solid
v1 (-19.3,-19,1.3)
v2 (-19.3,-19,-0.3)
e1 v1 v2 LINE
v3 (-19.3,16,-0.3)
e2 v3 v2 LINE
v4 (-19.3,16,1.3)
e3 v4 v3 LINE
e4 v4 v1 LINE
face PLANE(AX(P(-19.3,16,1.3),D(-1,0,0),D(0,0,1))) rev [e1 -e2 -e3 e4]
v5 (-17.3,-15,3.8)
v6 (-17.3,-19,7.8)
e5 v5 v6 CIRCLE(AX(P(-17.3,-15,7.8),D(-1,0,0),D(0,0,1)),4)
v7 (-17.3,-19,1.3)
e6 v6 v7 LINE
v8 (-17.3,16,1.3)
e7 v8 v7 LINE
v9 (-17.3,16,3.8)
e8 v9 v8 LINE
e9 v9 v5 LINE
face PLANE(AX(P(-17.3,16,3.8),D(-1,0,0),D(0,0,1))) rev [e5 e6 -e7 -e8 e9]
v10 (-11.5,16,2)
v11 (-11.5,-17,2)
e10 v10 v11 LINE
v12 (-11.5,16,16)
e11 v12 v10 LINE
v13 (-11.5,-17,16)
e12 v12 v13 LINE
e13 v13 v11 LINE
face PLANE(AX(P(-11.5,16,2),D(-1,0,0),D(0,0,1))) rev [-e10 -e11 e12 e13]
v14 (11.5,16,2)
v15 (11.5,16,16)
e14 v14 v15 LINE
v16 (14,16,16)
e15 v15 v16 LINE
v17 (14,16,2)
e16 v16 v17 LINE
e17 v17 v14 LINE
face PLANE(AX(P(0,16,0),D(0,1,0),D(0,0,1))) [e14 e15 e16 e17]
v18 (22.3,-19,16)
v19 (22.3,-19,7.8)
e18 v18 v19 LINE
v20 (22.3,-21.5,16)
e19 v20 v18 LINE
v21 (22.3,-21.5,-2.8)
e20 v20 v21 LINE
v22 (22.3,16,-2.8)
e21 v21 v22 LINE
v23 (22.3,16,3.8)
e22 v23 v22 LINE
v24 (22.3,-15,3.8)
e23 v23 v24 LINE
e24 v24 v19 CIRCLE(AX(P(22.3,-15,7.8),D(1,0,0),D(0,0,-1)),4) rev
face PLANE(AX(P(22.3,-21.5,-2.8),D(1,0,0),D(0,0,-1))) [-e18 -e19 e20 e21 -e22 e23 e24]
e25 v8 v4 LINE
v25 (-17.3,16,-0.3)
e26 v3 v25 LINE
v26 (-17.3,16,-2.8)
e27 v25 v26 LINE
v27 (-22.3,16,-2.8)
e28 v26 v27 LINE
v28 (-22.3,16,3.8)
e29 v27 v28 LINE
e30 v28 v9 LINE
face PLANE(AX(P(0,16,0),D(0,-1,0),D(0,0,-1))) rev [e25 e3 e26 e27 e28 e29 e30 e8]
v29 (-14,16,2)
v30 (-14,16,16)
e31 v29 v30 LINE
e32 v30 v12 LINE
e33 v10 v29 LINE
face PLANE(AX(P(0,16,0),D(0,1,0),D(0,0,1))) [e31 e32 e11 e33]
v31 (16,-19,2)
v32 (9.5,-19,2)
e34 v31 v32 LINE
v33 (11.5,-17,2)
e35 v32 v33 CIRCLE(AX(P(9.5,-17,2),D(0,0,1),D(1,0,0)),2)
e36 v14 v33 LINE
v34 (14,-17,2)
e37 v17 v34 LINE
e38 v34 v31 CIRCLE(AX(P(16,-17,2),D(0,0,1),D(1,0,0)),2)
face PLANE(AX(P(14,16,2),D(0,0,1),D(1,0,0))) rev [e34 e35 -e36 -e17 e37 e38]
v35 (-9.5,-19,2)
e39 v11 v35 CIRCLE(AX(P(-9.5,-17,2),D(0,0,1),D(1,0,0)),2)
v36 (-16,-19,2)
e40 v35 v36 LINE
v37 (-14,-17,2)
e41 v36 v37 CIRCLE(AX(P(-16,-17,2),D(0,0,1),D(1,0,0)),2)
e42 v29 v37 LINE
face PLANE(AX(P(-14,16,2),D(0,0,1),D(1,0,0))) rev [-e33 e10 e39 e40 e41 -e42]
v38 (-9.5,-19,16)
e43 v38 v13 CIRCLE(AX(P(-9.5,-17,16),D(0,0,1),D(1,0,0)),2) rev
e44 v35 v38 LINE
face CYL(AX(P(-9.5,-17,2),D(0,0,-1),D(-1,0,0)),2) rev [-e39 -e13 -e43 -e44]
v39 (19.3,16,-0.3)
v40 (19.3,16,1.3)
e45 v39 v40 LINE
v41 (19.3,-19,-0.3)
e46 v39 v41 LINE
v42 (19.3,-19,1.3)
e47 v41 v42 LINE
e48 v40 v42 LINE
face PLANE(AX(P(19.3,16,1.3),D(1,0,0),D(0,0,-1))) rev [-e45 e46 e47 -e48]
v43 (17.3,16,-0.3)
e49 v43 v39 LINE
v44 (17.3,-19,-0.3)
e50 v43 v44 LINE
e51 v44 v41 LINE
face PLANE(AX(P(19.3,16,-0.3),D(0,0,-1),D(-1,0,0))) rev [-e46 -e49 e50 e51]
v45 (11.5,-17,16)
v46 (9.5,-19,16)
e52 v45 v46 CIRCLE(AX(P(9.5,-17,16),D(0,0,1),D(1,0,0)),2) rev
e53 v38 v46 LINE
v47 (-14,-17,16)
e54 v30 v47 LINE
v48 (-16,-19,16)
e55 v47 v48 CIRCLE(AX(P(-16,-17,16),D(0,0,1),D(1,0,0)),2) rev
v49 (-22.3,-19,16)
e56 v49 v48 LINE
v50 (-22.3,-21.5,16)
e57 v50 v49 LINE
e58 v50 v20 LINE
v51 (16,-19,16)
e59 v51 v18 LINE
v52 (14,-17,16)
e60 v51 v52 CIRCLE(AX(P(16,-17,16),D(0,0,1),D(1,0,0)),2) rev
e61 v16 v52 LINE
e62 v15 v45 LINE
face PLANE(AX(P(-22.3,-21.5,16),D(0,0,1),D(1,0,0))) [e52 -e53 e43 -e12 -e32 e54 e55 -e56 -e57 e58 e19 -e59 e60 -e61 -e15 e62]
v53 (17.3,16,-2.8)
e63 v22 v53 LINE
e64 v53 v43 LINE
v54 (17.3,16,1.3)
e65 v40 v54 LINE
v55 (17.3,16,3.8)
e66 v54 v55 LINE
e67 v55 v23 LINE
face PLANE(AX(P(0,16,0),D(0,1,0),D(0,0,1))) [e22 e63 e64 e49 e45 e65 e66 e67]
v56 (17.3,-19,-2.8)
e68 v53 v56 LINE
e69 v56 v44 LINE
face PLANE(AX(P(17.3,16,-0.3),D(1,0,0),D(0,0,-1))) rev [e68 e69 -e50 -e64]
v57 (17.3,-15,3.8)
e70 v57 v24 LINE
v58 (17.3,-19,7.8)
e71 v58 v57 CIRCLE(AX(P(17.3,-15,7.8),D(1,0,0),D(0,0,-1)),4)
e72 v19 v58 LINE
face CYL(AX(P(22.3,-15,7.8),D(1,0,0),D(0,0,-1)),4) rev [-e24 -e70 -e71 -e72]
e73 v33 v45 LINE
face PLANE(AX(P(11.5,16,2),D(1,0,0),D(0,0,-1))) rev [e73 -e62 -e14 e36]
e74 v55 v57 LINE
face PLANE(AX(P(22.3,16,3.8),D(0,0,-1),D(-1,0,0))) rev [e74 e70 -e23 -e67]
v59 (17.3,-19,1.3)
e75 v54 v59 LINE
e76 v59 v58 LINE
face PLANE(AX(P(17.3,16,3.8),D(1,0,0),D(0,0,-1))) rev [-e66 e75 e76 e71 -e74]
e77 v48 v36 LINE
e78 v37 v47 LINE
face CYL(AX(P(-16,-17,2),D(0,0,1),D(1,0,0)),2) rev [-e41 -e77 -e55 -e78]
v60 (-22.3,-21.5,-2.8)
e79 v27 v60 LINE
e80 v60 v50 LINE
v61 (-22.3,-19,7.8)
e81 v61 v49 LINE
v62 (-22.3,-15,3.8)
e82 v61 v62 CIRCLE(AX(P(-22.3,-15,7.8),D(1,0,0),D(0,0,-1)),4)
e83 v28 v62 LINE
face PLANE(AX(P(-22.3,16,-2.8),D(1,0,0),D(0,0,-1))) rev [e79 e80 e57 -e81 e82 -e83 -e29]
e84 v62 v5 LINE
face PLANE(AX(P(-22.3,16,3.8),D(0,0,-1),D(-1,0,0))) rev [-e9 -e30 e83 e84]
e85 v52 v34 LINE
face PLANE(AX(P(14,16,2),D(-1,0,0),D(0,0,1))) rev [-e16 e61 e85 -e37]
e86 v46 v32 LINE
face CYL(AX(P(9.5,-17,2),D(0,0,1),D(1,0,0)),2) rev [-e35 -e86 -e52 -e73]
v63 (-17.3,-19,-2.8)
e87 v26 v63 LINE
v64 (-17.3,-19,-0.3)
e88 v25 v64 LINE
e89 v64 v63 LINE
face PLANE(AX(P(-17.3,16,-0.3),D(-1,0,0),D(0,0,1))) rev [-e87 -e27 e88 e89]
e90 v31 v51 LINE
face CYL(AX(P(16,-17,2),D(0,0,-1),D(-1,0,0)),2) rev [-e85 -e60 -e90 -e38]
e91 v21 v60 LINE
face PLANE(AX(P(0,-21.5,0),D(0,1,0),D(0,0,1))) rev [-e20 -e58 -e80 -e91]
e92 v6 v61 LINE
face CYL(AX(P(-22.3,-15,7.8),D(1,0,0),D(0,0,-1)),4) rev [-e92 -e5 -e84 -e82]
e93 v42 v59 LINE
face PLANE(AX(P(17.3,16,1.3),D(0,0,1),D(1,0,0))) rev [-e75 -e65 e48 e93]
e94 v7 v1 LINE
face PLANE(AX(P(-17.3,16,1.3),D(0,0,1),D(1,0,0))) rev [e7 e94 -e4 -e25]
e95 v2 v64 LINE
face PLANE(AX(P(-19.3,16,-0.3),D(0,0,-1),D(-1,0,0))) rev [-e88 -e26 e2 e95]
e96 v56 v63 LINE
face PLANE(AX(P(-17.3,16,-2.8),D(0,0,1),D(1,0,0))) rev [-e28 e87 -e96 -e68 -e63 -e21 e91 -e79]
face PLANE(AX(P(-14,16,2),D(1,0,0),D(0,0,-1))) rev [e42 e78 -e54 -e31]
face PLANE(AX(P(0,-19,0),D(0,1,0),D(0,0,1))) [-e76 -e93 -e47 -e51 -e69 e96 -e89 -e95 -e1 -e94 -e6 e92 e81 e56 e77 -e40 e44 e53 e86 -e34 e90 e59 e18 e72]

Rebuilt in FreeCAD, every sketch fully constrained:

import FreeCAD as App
import Part
import Sketcher

V = App.Vector
Q = App.Units.Quantity


def edges_at(feature, points):
    """Names of the edges that pass closest to the given points."""
    edges = feature.Shape.Edges
    near = lambda p: min(range(len(edges)), key=lambda i: edges[i].distToShape(Part.Vertex(*p))[0])
    return sorted({f"Edge{near(p) + 1}" for p in points})

doc = App.newDocument("Part")
body = doc.addObject("PartDesign::Body", "Body")

sketch1 = body.newObject("Sketcher::SketchObject", "Sketch")
sketch1.AttachmentSupport = (doc.getObject("XZ_Plane"), [""])
sketch1.MapMode = "FlatFace"
sketch1.AttachmentOffset = App.Placement(V(0, 0, 19), App.Rotation())
sketch1.addGeometry([
    Part.LineSegment(V(-19.3, -0.3, 0), V(-17.3, -0.3, 0)),
    Part.LineSegment(V(-17.3, -0.3, 0), V(-17.3, -2.8, 0)),
    Part.LineSegment(V(-17.3, -2.8, 0), V(-22.3, -2.8, 0)),
    Part.LineSegment(V(-22.3, -2.8, 0), V(-22.3, 3.8, 0)),
    Part.LineSegment(V(-22.3, 3.8, 0), V(-17.3, 3.8, 0)),
    Part.LineSegment(V(-17.3, 3.8, 0), V(-17.3, 1.3, 0)),
    Part.LineSegment(V(-17.3, 1.3, 0), V(-19.3, 1.3, 0)),
    Part.LineSegment(V(-19.3, 1.3, 0), V(-19.3, -0.3, 0)),
], False)
sketch1.addConstraint([
    Sketcher.Constraint("Coincident", 0, 2, 1, 1),
    Sketcher.Constraint("Coincident", 1, 2, 2, 1),
    Sketcher.Constraint("Coincident", 2, 2, 3, 1),
    Sketcher.Constraint("Coincident", 3, 2, 4, 1),
    Sketcher.Constraint("Coincident", 4, 2, 5, 1),
    Sketcher.Constraint("Coincident", 5, 2, 6, 1),
    Sketcher.Constraint("Coincident", 6, 2, 7, 1),
    Sketcher.Constraint("Coincident", 7, 2, 0, 1),
    Sketcher.Constraint("Horizontal", 0),
    Sketcher.Constraint("Vertical", 1),
    Sketcher.Constraint("Horizontal", 2),
    Sketcher.Constraint("Vertical", 3),
    Sketcher.Constraint("Horizontal", 4),
    Sketcher.Constraint("Vertical", 5),
    Sketcher.Constraint("Horizontal", 6),
    Sketcher.Constraint("Vertical", 7),
    Sketcher.Constraint("Vertical", 1, 2, 4, 2),
    Sketcher.Constraint("Equal", 1, 5),
    Sketcher.Constraint("DistanceX", 0, 1, 0, 2, Q("2 mm")),
    Sketcher.Constraint("DistanceX", 2, 2, 2, 1, Q("5 mm")),
    Sketcher.Constraint("DistanceY", 1, 2, 1, 1, Q("2.5 mm")),
    Sketcher.Constraint("DistanceY", 3, 1, 3, 2, Q("6.6 mm")),
    Sketcher.Constraint("DistanceX", 0, 2, -1, 1, Q("17.3 mm")),
    Sketcher.Constraint("DistanceY", 0, 2, -1, 1, Q("0.3 mm")),
])
pad1 = body.newObject("PartDesign::Pad", "Pad")
pad1.Profile = sketch1
pad1.Length = 35
pad1.Reversed = True
body2 = doc.addObject("PartDesign::Body", "Body001")

sketch2 = body2.newObject("Sketcher::SketchObject", "Sketch001")
sketch2.AttachmentSupport = (doc.getObject("XZ_Plane001"), [""])
sketch2.MapMode = "FlatFace"
sketch2.AttachmentOffset = App.Placement(V(0, 0, 19), App.Rotation())
sketch2.addGeometry([
    Part.LineSegment(V(19.3, -0.3, 0), V(19.3, 1.3, 0)),
    Part.LineSegment(V(19.3, 1.3, 0), V(17.3, 1.3, 0)),
    Part.LineSegment(V(17.3, 1.3, 0), V(17.3, 3.8, 0)),
    Part.LineSegment(V(17.3, 3.8, 0), V(22.3, 3.8, 0)),
    Part.LineSegment(V(22.3, 3.8, 0), V(22.3, -2.8, 0)),
    Part.LineSegment(V(22.3, -2.8, 0), V(17.3, -2.8, 0)),
    Part.LineSegment(V(17.3, -2.8, 0), V(17.3, -0.3, 0)),
    Part.LineSegment(V(17.3, -0.3, 0), V(19.3, -0.3, 0)),
], False)
sketch2.addConstraint([
    Sketcher.Constraint("Coincident", 0, 2, 1, 1),
    Sketcher.Constraint("Coincident", 1, 2, 2, 1),
    Sketcher.Constraint("Coincident", 2, 2, 3, 1),
    Sketcher.Constraint("Coincident", 3, 2, 4, 1),
    Sketcher.Constraint("Coincident", 4, 2, 5, 1),
    Sketcher.Constraint("Coincident", 5, 2, 6, 1),
    Sketcher.Constraint("Coincident", 6, 2, 7, 1),
    Sketcher.Constraint("Coincident", 7, 2, 0, 1),
    Sketcher.Constraint("Vertical", 0),
    Sketcher.Constraint("Horizontal", 1),
    Sketcher.Constraint("Vertical", 2),
    Sketcher.Constraint("Horizontal", 3),
    Sketcher.Constraint("Vertical", 4),
    Sketcher.Constraint("Horizontal", 5),
    Sketcher.Constraint("Vertical", 6),
    Sketcher.Constraint("Horizontal", 7),
    Sketcher.Constraint("Vertical", 2, 2, 5, 2),
    Sketcher.Constraint("Equal", 2, 6),
    Sketcher.Constraint("DistanceX", 1, 2, 1, 1, Q("2 mm")),
    Sketcher.Constraint("DistanceX", 3, 1, 3, 2, Q("5 mm")),
    Sketcher.Constraint("DistanceY", 0, 1, 0, 2, Q("1.6 mm")),
    Sketcher.Constraint("DistanceY", 2, 1, 2, 2, Q("2.5 mm")),
    Sketcher.Constraint("DistanceX", -1, 1, 0, 2, Q("19.3 mm")),
    Sketcher.Constraint("DistanceY", -1, 1, 0, 2, Q("1.3 mm")),
])
pad2 = body2.newObject("PartDesign::Pad", "Pad001")
pad2.Profile = sketch2
pad2.Length = 35
pad2.Reversed = True
body3 = doc.addObject("PartDesign::Body", "Body002")

sketch3 = body3.newObject("Sketcher::SketchObject", "Sketch002")
sketch3.AttachmentSupport = (doc.getObject("XZ_Plane002"), [""])
sketch3.MapMode = "FlatFace"
sketch3.AttachmentOffset = App.Placement(V(0, 0, 19), App.Rotation())
sketch3.addGeometry([
    Part.LineSegment(V(11.5, 2, 0), V(11.5, 16, 0)),
    Part.LineSegment(V(11.5, 16, 0), V(14, 16, 0)),
    Part.LineSegment(V(14, 16, 0), V(14, 2, 0)),
    Part.LineSegment(V(14, 2, 0), V(11.5, 2, 0)),
], False)
sketch3.addConstraint([
    Sketcher.Constraint("Coincident", 0, 2, 1, 1),
    Sketcher.Constraint("Coincident", 1, 2, 2, 1),
    Sketcher.Constraint("Coincident", 2, 2, 3, 1),
    Sketcher.Constraint("Coincident", 3, 2, 0, 1),
    Sketcher.Constraint("Vertical", 0),
    Sketcher.Constraint("Horizontal", 1),
    Sketcher.Constraint("Vertical", 2),
    Sketcher.Constraint("Horizontal", 3),
    Sketcher.Constraint("DistanceY", 0, 1, 0, 2, Q("14 mm")),
    Sketcher.Constraint("DistanceX", 1, 1, 1, 2, Q("2.5 mm")),
    Sketcher.Constraint("DistanceY", -1, 1, 0, 2, Q("16 mm")),
    Sketcher.Constraint("DistanceX", -1, 1, 1, 2, Q("14 mm")),
])
pad3 = body3.newObject("PartDesign::Pad", "Pad002")
pad3.Profile = sketch3
pad3.Length = 35
pad3.Reversed = True
body4 = doc.addObject("PartDesign::Body", "Body003")

sketch4 = body4.newObject("Sketcher::SketchObject", "Sketch003")
sketch4.AttachmentSupport = (doc.getObject("XZ_Plane003"), [""])
sketch4.MapMode = "FlatFace"
sketch4.AttachmentOffset = App.Placement(V(0, 0, 19), App.Rotation())
sketch4.addGeometry([
    Part.LineSegment(V(-14, 2, 0), V(-14, 16, 0)),
    Part.LineSegment(V(-14, 16, 0), V(-11.5, 16, 0)),
    Part.LineSegment(V(-11.5, 16, 0), V(-11.5, 2, 0)),
    Part.LineSegment(V(-11.5, 2, 0), V(-14, 2, 0)),
], False)
sketch4.addConstraint([
    Sketcher.Constraint("Coincident", 0, 2, 1, 1),
    Sketcher.Constraint("Coincident", 1, 2, 2, 1),
    Sketcher.Constraint("Coincident", 2, 2, 3, 1),
    Sketcher.Constraint("Coincident", 3, 2, 0, 1),
    Sketcher.Constraint("Vertical", 0),
    Sketcher.Constraint("Horizontal", 1),
    Sketcher.Constraint("Vertical", 2),
    Sketcher.Constraint("Horizontal", 3),
    Sketcher.Constraint("DistanceY", 0, 1, 0, 2, Q("14 mm")),
    Sketcher.Constraint("DistanceX", 1, 1, 1, 2, Q("2.5 mm")),
    Sketcher.Constraint("DistanceX", 0, 2, -1, 1, Q("14 mm")),
    Sketcher.Constraint("DistanceY", -1, 1, 0, 2, Q("16 mm")),
])
pad4 = body4.newObject("PartDesign::Pad", "Pad003")
pad4.Profile = sketch4
pad4.Length = 35
pad4.Reversed = True
body.AllowCompound = True
doc.recompute()

boolean = body.newObject("PartDesign::Boolean", "Boolean")
boolean.Type = "Fuse"
boolean.addObjects([body2])
doc.recompute()

boolean2 = body.newObject("PartDesign::Boolean", "Boolean001")
boolean2.Type = "Fuse"
boolean2.addObjects([body3])
doc.recompute()

boolean3 = body.newObject("PartDesign::Boolean", "Boolean002")
boolean3.Type = "Fuse"
boolean3.addObjects([body4])

sketch5 = body.newObject("Sketcher::SketchObject", "Sketch004")
sketch5.AttachmentSupport = (doc.getObject("XZ_Plane"), [""])
sketch5.MapMode = "FlatFace"
sketch5.AttachmentOffset = App.Placement(V(0, 0, 19), App.Rotation())
sketch5.addGeometry([
    Part.LineSegment(V(-22, -3, 0), V(-22, 16, 0)),
    Part.LineSegment(V(-22, 16, 0), V(22, 16, 0)),
    Part.LineSegment(V(22, 16, 0), V(22, -3, 0)),
    Part.LineSegment(V(22, -3, 0), V(-22, -3, 0)),
], False)
sketch5.addConstraint([
    Sketcher.Constraint("Coincident", 0, 2, 1, 1),
    Sketcher.Constraint("Coincident", 1, 2, 2, 1),
    Sketcher.Constraint("Coincident", 2, 2, 3, 1),
    Sketcher.Constraint("Coincident", 3, 2, 0, 1),
    Sketcher.Constraint("Vertical", 0),
    Sketcher.Constraint("Horizontal", 1),
    Sketcher.Constraint("Vertical", 2),
    Sketcher.Constraint("Horizontal", 3),
    Sketcher.Constraint("DistanceX", 1, 1, 1, 2, Q("44.6 mm")),
    Sketcher.Constraint("DistanceY", 0, 1, 0, 2, Q("18.8 mm")),
    Sketcher.Constraint("DistanceY", -1, 1, 0, 2, Q("16 mm")),
    Sketcher.Constraint("DistanceX", 0, 2, -1, 1, Q("22.3 mm")),
])
pad5 = body.newObject("PartDesign::Pad", "Pad004")
pad5.Profile = sketch5
pad5.Length = 2.5
doc.recompute()

fillet = body.newObject("PartDesign::Fillet", "Fillet")
fillet.Base = (pad5, edges_at(pad5, [
    (11.5, -19, 9),
    (14, -19, 9),
    (-14, -19, 9),
    (-11.5, -19, 9),
]))
fillet.Radius = 2
doc.recompute()

fillet2 = body.newObject("PartDesign::Fillet", "Fillet001")
fillet2.Base = (fillet, edges_at(fillet, [(19.8, -19, 3.8), (-19.8, -19, 3.8)]))
fillet2.Radius = 4

doc.recompute()
